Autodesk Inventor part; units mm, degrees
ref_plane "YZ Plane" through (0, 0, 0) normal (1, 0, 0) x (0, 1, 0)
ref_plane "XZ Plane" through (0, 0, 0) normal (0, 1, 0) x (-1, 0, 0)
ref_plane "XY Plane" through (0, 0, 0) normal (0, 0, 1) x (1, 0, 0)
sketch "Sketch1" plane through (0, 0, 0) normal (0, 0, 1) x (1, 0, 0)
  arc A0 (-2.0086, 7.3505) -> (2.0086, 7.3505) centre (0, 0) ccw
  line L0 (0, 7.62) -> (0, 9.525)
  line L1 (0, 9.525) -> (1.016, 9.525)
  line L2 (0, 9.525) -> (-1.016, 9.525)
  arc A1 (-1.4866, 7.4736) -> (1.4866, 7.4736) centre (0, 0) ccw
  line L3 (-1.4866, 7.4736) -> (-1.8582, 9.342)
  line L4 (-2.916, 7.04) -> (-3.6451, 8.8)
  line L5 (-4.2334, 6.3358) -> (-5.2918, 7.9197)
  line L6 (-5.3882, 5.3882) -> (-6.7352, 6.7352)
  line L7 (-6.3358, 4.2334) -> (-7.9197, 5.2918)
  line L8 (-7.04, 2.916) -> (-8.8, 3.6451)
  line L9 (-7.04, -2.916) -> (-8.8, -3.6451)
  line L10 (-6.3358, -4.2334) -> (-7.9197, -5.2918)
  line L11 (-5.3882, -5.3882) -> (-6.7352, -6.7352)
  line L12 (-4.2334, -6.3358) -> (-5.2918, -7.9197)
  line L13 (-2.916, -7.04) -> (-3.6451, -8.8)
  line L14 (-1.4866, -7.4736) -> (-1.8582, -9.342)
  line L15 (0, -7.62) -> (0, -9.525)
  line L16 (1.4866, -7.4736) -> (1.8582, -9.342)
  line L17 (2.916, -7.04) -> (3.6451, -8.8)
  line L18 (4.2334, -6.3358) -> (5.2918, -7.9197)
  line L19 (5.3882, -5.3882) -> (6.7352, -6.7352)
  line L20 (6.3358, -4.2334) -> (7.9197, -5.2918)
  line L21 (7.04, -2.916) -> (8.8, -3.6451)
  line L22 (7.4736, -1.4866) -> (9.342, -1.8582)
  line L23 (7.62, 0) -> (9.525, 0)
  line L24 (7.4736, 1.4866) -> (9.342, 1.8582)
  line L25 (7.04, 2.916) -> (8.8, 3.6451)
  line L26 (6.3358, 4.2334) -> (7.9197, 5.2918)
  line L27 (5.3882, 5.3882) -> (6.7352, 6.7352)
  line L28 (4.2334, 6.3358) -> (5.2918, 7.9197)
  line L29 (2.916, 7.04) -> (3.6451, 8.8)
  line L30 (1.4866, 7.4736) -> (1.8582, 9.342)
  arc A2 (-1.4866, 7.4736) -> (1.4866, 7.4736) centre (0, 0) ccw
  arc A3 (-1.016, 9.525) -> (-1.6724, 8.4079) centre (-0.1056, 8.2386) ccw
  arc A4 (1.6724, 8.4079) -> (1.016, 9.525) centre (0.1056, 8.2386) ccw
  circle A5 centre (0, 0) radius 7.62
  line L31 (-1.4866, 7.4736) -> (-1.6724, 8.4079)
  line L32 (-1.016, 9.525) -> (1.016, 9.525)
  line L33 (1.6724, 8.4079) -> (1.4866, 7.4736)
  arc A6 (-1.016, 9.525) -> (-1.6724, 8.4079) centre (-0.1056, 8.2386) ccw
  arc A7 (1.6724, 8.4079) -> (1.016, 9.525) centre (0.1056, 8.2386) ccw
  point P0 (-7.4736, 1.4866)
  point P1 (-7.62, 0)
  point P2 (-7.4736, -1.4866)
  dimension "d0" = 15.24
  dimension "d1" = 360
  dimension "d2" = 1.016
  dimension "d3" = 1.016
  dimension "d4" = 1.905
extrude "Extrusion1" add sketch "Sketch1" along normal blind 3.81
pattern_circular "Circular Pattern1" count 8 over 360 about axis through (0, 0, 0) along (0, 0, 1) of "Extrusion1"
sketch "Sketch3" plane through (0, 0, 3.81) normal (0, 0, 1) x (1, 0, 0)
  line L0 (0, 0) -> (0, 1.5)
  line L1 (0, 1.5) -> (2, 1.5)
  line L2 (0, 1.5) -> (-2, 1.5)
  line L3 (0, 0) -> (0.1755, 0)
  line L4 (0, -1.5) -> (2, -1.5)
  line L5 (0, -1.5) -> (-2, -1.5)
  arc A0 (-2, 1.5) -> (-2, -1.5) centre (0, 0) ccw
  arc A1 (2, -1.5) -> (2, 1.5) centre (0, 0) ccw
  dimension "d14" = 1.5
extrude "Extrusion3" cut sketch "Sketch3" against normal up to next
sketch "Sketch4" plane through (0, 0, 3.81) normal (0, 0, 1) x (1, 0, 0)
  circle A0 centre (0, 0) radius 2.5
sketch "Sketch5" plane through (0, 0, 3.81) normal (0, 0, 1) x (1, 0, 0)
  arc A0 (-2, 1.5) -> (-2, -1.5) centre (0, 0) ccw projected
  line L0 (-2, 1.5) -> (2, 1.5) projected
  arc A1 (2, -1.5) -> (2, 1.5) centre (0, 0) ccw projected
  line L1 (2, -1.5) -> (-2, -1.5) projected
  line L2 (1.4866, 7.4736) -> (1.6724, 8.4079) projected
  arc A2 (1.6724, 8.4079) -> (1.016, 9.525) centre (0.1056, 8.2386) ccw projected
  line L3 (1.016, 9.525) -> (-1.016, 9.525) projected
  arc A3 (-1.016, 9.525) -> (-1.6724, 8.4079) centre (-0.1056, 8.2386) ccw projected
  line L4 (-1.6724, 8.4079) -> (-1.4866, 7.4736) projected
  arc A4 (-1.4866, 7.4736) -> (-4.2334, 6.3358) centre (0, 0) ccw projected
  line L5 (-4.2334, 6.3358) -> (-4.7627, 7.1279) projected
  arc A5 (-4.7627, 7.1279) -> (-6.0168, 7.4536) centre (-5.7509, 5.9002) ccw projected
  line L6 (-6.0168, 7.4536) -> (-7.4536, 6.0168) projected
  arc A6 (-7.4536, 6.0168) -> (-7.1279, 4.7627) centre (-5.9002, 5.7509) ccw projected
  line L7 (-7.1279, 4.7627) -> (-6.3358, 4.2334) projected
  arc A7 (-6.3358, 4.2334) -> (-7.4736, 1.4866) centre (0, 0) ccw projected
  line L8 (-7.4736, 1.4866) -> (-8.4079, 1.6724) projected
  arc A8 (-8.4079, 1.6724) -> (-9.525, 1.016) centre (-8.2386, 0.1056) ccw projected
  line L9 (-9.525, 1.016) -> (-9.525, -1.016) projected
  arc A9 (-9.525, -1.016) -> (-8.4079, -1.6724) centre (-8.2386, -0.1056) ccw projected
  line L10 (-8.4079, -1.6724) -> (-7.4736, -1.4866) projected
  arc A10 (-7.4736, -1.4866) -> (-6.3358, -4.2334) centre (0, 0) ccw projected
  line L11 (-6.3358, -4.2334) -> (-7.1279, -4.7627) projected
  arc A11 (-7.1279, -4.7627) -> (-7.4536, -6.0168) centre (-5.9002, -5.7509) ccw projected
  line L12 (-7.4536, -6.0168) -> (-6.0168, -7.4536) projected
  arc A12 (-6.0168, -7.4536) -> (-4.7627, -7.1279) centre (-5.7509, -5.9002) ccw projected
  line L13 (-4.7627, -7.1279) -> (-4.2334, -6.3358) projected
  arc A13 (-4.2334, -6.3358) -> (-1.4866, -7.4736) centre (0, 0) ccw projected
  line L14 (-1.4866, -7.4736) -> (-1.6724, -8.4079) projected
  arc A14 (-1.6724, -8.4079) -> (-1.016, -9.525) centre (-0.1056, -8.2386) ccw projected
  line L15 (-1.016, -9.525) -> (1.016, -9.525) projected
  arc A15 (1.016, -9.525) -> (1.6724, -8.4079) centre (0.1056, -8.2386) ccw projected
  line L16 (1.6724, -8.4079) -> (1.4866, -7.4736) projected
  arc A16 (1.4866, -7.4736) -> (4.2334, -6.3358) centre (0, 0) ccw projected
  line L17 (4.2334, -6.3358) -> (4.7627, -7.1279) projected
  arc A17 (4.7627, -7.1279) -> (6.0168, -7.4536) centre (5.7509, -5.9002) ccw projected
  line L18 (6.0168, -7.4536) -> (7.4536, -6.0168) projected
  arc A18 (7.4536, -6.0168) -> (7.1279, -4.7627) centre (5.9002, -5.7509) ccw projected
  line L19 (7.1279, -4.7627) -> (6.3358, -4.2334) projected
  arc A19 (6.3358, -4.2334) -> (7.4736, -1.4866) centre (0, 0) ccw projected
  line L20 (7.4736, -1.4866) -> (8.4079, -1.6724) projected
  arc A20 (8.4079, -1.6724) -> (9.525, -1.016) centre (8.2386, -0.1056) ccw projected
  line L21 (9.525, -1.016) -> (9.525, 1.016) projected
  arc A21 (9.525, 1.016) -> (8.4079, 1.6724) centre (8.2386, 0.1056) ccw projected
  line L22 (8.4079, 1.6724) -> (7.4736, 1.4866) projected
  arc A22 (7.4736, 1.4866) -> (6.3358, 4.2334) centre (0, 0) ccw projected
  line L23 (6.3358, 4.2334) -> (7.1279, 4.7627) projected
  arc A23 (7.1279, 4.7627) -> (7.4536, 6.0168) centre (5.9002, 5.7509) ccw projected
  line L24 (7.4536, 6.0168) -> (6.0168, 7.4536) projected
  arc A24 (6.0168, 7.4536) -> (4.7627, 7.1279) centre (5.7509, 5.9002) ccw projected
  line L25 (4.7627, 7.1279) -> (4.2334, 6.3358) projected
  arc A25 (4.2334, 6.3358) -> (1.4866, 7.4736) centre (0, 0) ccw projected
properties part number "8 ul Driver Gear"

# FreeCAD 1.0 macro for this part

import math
import FreeCAD as App
import Part
import Sketcher
from FreeCAD import Vector
Q = App.Units.Quantity

doc = App.newDocument("Part")
params = doc.addObject("Spreadsheet::Sheet", "Params")
for row, (alias, value) in enumerate([
    ("sketch1_radius", "0.3 in"),
    ("pad1_length", "0.15 in"),
], start=1):
    params.set(f"A{row}", alias)
    params.set(f"B{row}", "=" + value)
    params.setAlias(f"B{row}", alias)

body = doc.addObject("PartDesign::Body", "Body")

# Sketch on XY plane
sketch1 = body.newObject("Sketcher::SketchObject", "Sketch")
sketch1.AttachmentSupport = (doc.getObject("XY_Plane"), [""])
sketch1.MapMode = "FlatFace"
sketch1.addGeometry(Part.ArcOfCircle(Part.Circle(Vector(0, 0, 0), Vector(0, 0, 1), 7.6), math.radians(101), math.radians(439)), False)
sketch1.addGeometry(Part.LineSegment(Vector(1.5, 7.5, 0), Vector(1.7, 8.4, 0)), False)
sketch1.addGeometry(Part.ArcOfCircle(Part.Circle(Vector(0.1, 8.2, 0), Vector(0, 0, 1), 1.6), math.radians(6), math.radians(55)), False)
sketch1.addGeometry(Part.LineSegment(Vector(1, 9.5, 0), Vector(-1, 9.5, 0)), False)
sketch1.addGeometry(Part.ArcOfCircle(Part.Circle(Vector(-0.1, 8.2, 0), Vector(0, 0, 1), 1.6), math.radians(125), math.radians(174)), False)
sketch1.addGeometry(Part.LineSegment(Vector(-1.7, 8.4, 0), Vector(-1.5, 7.5, 0)), False)
sketch1.addConstraint(Sketcher.Constraint("Coincident", 0, 2, 1, 1))
sketch1.addConstraint(Sketcher.Constraint("Coincident", 1, 2, 2, 1))
sketch1.addConstraint(Sketcher.Constraint("Coincident", 2, 2, 3, 1))
sketch1.addConstraint(Sketcher.Constraint("Coincident", 3, 2, 4, 1))
sketch1.addConstraint(Sketcher.Constraint("Coincident", 4, 2, 5, 1))
sketch1.addConstraint(Sketcher.Constraint("Coincident", 5, 2, 0, 1))
sketch1.addConstraint(Sketcher.Constraint("Horizontal", 3))
sketch1.addConstraint(Sketcher.Constraint("Coincident", 0, 3, -1, 1))
sketch1.addConstraint(Sketcher.Constraint("Equal", 2, 4))
sketch1.addConstraint(Sketcher.Constraint("Symmetric", 2, 3, 4, 3, -2))
sketch1.addConstraint(Sketcher.Constraint("Horizontal", 1, 2, 4, 2))
sketch1.addConstraint(Sketcher.Constraint("Horizontal", 0, 2, 5, 2))
sketch1.addConstraint(Sketcher.Constraint("Radius", 0, Q("0.3 in")))
sketch1.addConstraint(Sketcher.Constraint("DistanceX", -1, 1, 2, 2, Q("0.04 in")))
sketch1.addConstraint(Sketcher.Constraint("Radius", 2, Q("1.576 mm")))
sketch1.addConstraint(Sketcher.Constraint("DistanceX", 4, 3, 1, 2, Q("0.07 in")))
sketch1.addConstraint(Sketcher.Constraint("DistanceY", -1, 1, 2, 2, Q("0.375 in")))
sketch1.addConstraint(Sketcher.Constraint("Distance", 1, Q("0.0375 in")))
sketch1.addConstraint(Sketcher.Constraint("DistanceX", -1, 1, 0, 2, Q("1.4866 mm")))
sketch1.setExpression("Constraints[12]", "Params.sketch1_radius")
pad1 = body.newObject("PartDesign::Pad", "Pad")
pad1.Profile = sketch1
pad1.setExpression("Length", "Params.pad1_length")
doc.recompute()

polarpattern = body.newObject("PartDesign::PolarPattern", "PolarPattern")
polarpattern.Originals = [pad1]
polarpattern.Axis = (doc.getObject("Z_Axis"), [""])
polarpattern.Angle = 360
polarpattern.Occurrences = 8
body.Tip = polarpattern

# Sketch on XY plane
sketch2 = body.newObject("Sketcher::SketchObject", "Sketch001")
sketch2.AttachmentSupport = (doc.getObject("XY_Plane"), [""])
sketch2.MapMode = "FlatFace"
sketch2.AttachmentOffset = App.Placement(Vector(0, 0, 0.15 * 25.4), App.Rotation())
sketch2.addGeometry(Part.LineSegment(Vector(2, 1.5, 0), Vector(-2, 1.5, 0)), False)
sketch2.addGeometry(Part.ArcOfCircle(Part.Circle(Vector(0, 0, 0), Vector(0, 0, 1), 2.5), math.radians(143), math.radians(217)), False)
sketch2.addGeometry(Part.LineSegment(Vector(-2, -1.5, 0), Vector(2, -1.5, 0)), False)
sketch2.addGeometry(Part.ArcOfCircle(Part.Circle(Vector(0, 0, 0), Vector(0, 0, 1), 2.5), math.radians(-37), math.radians(37)), False)
sketch2.addConstraint(Sketcher.Constraint("Coincident", 0, 2, 1, 1))
sketch2.addConstraint(Sketcher.Constraint("Coincident", 1, 2, 2, 1))
sketch2.addConstraint(Sketcher.Constraint("Coincident", 2, 2, 3, 1))
sketch2.addConstraint(Sketcher.Constraint("Coincident", 3, 2, 0, 1))
sketch2.addConstraint(Sketcher.Constraint("Horizontal", 0))
sketch2.addConstraint(Sketcher.Constraint("Horizontal", 2))
sketch2.addConstraint(Sketcher.Constraint("Coincident", 1, 3, -1, 1))
sketch2.addConstraint(Sketcher.Constraint("Coincident", 3, 3, -1, 1))
sketch2.addConstraint(Sketcher.Constraint("Equal", 1, 3))
sketch2.addConstraint(Sketcher.Constraint("Vertical", 0, 2, 1, 2))
sketch2.addConstraint(Sketcher.Constraint("DistanceY", -1, 1, 0, 2, Q("1.5 mm")))
sketch2.addConstraint(Sketcher.Constraint("Radius", 1, Q("2.5 mm")))
pocket1 = body.newObject("PartDesign::Pocket", "Pocket")
pocket1.Profile = sketch2
pocket1.Type = "UpToFirst"

doc.recompute()
